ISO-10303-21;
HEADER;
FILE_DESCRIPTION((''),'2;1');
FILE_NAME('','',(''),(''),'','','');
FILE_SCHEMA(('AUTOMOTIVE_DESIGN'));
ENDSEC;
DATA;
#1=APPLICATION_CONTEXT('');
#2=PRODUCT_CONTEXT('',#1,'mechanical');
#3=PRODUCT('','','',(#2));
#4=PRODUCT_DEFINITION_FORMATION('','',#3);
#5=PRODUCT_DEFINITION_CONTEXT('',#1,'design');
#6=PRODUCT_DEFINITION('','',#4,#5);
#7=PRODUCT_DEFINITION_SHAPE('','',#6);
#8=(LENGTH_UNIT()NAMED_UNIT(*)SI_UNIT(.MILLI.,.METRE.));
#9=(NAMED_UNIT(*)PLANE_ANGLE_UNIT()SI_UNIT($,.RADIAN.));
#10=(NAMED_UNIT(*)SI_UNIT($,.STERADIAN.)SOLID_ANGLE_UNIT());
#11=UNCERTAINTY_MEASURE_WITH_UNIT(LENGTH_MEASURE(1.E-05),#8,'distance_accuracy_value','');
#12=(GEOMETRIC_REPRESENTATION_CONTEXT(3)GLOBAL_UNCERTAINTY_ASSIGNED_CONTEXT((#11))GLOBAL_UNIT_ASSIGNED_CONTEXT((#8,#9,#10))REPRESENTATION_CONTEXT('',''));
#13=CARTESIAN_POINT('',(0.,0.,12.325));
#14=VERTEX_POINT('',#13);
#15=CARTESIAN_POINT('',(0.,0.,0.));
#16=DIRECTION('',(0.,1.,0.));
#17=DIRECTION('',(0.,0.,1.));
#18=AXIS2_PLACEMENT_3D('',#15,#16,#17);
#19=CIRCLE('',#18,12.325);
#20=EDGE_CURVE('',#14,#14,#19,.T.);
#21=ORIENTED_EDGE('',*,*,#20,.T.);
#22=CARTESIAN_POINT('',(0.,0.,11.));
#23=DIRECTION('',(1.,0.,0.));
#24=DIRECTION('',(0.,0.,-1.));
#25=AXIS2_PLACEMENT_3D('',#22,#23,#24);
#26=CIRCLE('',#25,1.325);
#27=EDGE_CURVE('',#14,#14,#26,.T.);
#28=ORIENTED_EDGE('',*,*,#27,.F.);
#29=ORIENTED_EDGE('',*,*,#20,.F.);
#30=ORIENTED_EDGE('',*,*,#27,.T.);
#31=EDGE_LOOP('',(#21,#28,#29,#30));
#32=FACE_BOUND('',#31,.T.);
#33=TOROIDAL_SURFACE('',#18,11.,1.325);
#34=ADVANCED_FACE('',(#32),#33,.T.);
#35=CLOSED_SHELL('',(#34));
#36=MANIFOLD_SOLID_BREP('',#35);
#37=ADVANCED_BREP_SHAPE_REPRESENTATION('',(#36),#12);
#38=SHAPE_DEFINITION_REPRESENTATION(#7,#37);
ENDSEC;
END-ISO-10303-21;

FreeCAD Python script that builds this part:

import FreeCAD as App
import Part
import Sketcher
Q = App.Units.Quantity

doc = App.newDocument("Part")
params = doc.addObject("Spreadsheet::Sheet", "Params")
for row, (alias, value) in enumerate([
    ("sketch1_diameter", "2.65 mm"),
    ("sketch2_diameter", "22 mm"),
], start=1):
    params.set(f"A{row}", alias)
    params.set(f"B{row}", "=" + value)
    params.setAlias(f"B{row}", alias)

body = doc.addObject("PartDesign::Body", "Body")

sketch1 = doc.addObject("Sketcher::SketchObject", "Sketch")
body.addObject(sketch1)
sketch1.AttachmentSupport = (doc.XY_Plane, [""])
sketch1.MapMode = "FlatFace"
sketch1.addGeometry(Part.Circle(App.Vector(11, 0, 0), App.Vector(0, 0, 1), 1.3), False)
sketch1.addConstraint([
    Sketcher.Constraint("PointOnObject", 0, 3, -1),
    Sketcher.Constraint("Diameter", 0, Q("2.65 mm")),
    Sketcher.Constraint("DistanceX", -1, 1, 0, 3, Q("11 mm")),
])
sketch1.setExpression("Constraints[1]", "Params.sketch1_diameter")

sketch2 = doc.addObject("Sketcher::SketchObject", "Sketch001")
body.addObject(sketch2)
sketch2.AttachmentSupport = (doc.XZ_Plane, [""])
sketch2.MapMode = "FlatFace"
sketch2.addGeometry(Part.Circle(App.Vector(0, 0, 0), App.Vector(0, 0, 1), 11), False)
sketch2.addConstraint([
    Sketcher.Constraint("Coincident", 0, 3, -1, 1),
    Sketcher.Constraint("Diameter", 0, Q("22 mm")),
])
sketch2.setExpression("Constraints[1]", "Params.sketch2_diameter")
doc.recompute()

additivepipe = doc.addObject("PartDesign::AdditivePipe", "AdditivePipe")
body.addObject(additivepipe)
additivepipe.Profile = sketch1
additivepipe.Spine = (sketch2, ["Edge1"])

doc.recompute()
